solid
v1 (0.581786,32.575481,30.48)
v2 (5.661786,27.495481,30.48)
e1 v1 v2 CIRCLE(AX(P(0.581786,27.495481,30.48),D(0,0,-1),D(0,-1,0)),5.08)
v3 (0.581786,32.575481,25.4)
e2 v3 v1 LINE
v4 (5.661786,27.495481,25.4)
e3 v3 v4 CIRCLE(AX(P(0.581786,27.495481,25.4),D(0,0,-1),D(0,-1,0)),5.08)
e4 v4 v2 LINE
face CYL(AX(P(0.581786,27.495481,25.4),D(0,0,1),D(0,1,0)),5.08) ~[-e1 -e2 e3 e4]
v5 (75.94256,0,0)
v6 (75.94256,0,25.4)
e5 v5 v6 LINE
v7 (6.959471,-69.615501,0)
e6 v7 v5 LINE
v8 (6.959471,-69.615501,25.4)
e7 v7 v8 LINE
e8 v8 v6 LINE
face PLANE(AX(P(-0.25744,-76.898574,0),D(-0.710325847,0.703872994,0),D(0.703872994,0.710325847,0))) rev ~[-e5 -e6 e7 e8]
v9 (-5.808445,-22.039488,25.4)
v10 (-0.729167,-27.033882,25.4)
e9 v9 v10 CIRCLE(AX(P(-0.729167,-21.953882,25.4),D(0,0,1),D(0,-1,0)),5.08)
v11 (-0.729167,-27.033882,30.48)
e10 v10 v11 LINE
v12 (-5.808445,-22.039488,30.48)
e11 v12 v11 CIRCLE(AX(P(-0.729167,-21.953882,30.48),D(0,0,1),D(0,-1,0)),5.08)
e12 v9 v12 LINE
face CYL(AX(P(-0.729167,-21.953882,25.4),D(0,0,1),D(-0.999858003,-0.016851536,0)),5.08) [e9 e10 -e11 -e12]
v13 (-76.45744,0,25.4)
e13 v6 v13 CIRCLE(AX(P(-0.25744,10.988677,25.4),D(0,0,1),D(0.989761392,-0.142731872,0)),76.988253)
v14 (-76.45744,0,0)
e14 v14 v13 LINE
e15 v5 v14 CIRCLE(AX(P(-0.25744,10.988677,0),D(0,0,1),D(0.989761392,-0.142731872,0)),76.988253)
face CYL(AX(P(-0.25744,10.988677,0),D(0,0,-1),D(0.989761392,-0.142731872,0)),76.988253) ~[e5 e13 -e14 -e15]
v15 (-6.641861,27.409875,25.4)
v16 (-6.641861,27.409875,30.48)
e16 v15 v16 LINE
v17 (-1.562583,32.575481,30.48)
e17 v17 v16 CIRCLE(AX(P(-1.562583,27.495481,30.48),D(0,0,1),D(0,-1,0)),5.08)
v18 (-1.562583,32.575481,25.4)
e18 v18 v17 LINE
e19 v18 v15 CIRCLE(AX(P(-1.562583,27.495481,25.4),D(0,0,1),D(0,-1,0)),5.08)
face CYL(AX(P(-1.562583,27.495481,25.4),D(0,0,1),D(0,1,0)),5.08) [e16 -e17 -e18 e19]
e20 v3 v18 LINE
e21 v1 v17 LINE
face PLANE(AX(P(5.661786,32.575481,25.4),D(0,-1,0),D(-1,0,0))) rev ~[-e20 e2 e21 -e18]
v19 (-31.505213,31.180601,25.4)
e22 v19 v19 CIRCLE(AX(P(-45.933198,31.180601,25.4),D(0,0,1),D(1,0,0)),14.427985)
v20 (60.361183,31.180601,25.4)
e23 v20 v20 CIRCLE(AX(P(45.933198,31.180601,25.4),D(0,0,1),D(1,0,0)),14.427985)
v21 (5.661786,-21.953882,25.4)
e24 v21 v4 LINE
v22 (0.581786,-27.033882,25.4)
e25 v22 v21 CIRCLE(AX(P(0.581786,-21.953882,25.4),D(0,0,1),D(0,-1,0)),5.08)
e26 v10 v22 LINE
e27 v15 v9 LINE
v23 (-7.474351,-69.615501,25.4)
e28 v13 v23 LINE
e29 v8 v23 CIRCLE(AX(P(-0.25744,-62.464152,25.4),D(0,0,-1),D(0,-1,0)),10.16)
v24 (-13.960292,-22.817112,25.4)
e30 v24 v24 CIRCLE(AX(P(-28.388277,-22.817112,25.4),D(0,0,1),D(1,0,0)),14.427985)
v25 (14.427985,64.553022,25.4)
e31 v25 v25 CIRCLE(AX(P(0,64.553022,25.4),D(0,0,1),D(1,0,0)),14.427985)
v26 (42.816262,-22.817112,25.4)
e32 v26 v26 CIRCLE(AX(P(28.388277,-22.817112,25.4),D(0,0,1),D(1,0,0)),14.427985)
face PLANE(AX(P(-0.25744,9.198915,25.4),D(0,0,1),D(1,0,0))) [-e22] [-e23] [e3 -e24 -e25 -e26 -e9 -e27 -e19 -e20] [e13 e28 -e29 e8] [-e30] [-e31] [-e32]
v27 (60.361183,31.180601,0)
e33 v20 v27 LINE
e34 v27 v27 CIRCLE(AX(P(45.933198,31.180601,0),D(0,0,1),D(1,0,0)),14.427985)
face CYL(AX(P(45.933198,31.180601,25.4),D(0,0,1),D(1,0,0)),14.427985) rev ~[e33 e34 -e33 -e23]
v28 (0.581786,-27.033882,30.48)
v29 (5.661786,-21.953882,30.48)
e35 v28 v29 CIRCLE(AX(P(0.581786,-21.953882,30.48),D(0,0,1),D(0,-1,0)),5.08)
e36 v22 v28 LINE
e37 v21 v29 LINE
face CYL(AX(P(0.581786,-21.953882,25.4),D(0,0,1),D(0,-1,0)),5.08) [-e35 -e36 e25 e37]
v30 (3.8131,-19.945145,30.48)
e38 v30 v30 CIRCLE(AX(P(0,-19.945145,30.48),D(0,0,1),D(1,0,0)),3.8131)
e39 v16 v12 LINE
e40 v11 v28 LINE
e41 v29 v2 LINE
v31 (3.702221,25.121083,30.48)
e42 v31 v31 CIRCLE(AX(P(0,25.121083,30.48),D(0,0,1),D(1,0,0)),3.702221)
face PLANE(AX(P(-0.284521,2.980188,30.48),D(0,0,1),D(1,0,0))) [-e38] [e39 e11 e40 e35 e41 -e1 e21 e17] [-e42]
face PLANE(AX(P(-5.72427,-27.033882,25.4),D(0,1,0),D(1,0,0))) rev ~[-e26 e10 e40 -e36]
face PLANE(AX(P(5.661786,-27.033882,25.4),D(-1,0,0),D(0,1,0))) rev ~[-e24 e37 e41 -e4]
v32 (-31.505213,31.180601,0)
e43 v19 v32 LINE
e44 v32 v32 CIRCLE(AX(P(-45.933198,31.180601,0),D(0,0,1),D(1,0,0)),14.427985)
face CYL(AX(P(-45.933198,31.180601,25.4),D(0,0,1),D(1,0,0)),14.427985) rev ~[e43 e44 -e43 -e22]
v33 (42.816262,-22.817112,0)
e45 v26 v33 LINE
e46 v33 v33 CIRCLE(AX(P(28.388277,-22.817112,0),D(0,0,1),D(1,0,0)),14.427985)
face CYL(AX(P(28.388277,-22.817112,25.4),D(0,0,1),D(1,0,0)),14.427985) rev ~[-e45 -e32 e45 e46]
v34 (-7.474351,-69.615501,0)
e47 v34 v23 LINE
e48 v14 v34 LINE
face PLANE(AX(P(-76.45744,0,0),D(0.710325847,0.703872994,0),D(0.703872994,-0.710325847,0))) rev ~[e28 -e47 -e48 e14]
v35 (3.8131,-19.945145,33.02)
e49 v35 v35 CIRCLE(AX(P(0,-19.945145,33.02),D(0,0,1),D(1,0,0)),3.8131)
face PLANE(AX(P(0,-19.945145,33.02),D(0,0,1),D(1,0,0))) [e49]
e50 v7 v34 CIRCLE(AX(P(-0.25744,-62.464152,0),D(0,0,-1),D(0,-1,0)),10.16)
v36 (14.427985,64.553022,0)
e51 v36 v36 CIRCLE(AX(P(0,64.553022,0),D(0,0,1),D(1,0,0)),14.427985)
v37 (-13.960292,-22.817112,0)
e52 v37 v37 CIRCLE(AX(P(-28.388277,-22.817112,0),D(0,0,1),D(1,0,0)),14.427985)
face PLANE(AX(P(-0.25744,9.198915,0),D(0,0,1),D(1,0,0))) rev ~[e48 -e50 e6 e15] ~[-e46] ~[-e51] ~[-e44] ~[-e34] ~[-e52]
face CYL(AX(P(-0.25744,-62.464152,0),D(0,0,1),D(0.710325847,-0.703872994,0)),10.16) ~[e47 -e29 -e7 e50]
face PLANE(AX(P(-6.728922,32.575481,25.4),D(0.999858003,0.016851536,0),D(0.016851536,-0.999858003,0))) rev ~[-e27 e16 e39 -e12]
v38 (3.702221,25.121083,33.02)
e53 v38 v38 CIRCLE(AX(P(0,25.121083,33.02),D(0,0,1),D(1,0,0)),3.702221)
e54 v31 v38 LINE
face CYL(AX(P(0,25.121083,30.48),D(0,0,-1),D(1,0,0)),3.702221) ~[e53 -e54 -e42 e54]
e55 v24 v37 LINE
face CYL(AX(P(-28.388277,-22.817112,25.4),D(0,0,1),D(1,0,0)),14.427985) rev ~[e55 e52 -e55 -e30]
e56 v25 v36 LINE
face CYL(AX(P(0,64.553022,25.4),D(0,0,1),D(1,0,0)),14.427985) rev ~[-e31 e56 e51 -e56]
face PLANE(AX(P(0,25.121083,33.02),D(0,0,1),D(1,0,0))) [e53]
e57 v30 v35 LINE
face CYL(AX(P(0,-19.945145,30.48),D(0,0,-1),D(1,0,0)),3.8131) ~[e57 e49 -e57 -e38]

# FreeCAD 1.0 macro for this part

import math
import FreeCAD as App
import Part
import Sketcher
from FreeCAD import Vector
Q = App.Units.Quantity


def edges_at(feature, points):
    """Names of the edges that pass closest to the given points."""
    edges = feature.Shape.Edges
    near = lambda p: min(range(len(edges)), key=lambda i: edges[i].distToShape(Part.Vertex(*p))[0])
    return sorted({f"Edge{near(p) + 1}" for p in points})

doc = App.newDocument("Part")
body = doc.addObject("PartDesign::Body", "Body")

# Sketch on XY plane
sketch1 = body.newObject("Sketcher::SketchObject", "Sketch")
sketch1.AttachmentSupport = (doc.getObject("XY_Plane"), [""])
sketch1.MapMode = "FlatFace"
sketch1.addGeometry(Part.LineSegment(Vector(-0.25744, -76.898574, 0), Vector(75.94256, 0, 0)), False)
sketch1.addGeometry(Part.ArcOfCircle(Part.Circle(Vector(-0.25744, 10.988677, 0), Vector(0, 0, 1), 76.988253), math.radians(-8.205959), math.radians(188.205959)), False)
sketch1.addGeometry(Part.LineSegment(Vector(-76.45744, 0, 0), Vector(-0.25744, -76.898574, 0)), False)
sketch1.addConstraint(Sketcher.Constraint("Coincident", 0, 2, 1, 1))
sketch1.addConstraint(Sketcher.Constraint("Coincident", 1, 2, 2, 1))
sketch1.addConstraint(Sketcher.Constraint("Coincident", 2, 2, 0, 1))
sketch1.addConstraint(Sketcher.Constraint("PointOnObject", 0, 2, -1))
sketch1.addConstraint(Sketcher.Constraint("PointOnObject", 1, 2, -1))
sketch1.addConstraint(Sketcher.Constraint("Vertical", 1, 3, 2, 2))
sketch1.addConstraint(Sketcher.Constraint("DistanceX", 1, 3, 0, 2, Q("3 in")))
sketch1.addConstraint(Sketcher.Constraint("Radius", 1, Q("76.988253 mm")))
sketch1.addConstraint(Sketcher.Constraint("DistanceX", 1, 3, -1, 1, Q("0.25744 mm")))
sketch1.addConstraint(Sketcher.Constraint("DistanceY", 2, 2, 1, 3, Q("87.887251 mm")))
pad1 = body.newObject("PartDesign::Pad", "Pad")
pad1.Profile = sketch1
pad1.Length = Q("1 in")
doc.recompute()

fillet = body.newObject("PartDesign::Fillet", "Fillet")
fillet.Base = (pad1, edges_at(pad1, [(-0.257, -76.899, 12.7)]))
fillet.Radius = Q("0.4 in")

# Sketch on XY plane
sketch2 = body.newObject("Sketcher::SketchObject", "Sketch001")
sketch2.AttachmentSupport = (doc.getObject("XY_Plane"), [""])
sketch2.MapMode = "FlatFace"
sketch2.AttachmentOffset = App.Placement(Vector(0, 0, 1 * 25.4), App.Rotation())
sketch2.addGeometry(Part.Circle(Vector(0, 64.553022, 0), Vector(0, 0, 1), 14.427985), False)
sketch2.addGeometry(Part.Circle(Vector(-45.933198, 31.180601, 0), Vector(0, 0, 1), 14.427985), False)
sketch2.addGeometry(Part.Circle(Vector(-28.388277, -22.817112, 0), Vector(0, 0, 1), 14.427985), False)
sketch2.addGeometry(Part.Circle(Vector(28.388277, -22.817112, 0), Vector(0, 0, 1), 14.427985), False)
sketch2.addGeometry(Part.Circle(Vector(45.933198, 31.180601, 0), Vector(0, 0, 1), 14.427985), False)
sketch2.addConstraint(Sketcher.Constraint("Equal", 0, 1))
sketch2.addConstraint(Sketcher.Constraint("Equal", 1, 2))
sketch2.addConstraint(Sketcher.Constraint("Equal", 2, 3))
sketch2.addConstraint(Sketcher.Constraint("Equal", 3, 4))
sketch2.addConstraint(Sketcher.Constraint("Symmetric", 2, 3, 3, 3, -2))
sketch2.addConstraint(Sketcher.Constraint("Symmetric", 1, 3, 4, 3, -2))
sketch2.addConstraint(Sketcher.Constraint("PointOnObject", 0, 3, -2))
sketch2.addConstraint(Sketcher.Constraint("Diameter", 0, Q("28.85597 mm")))
sketch2.addConstraint(Sketcher.Constraint("DistanceY", -1, 1, 1, 3, Q("31.180601 mm")))
sketch2.addConstraint(Sketcher.Constraint("DistanceY", -1, 1, 0, 3, Q("64.553022 mm")))
sketch2.addConstraint(Sketcher.Constraint("DistanceX", 1, 3, 2, 3, Q("17.544921 mm")))
sketch2.addConstraint(Sketcher.Constraint("DistanceX", 1, 3, -1, 1, Q("45.933198 mm")))
sketch2.addConstraint(Sketcher.Constraint("DistanceY", 2, 3, -1, 1, Q("22.817112 mm")))
pocket1 = body.newObject("PartDesign::Pocket", "Pocket")
pocket1.Profile = sketch2
pocket1.Type = "ThroughAll"

# Sketch on XY plane
sketch3 = body.newObject("Sketcher::SketchObject", "Sketch002")
sketch3.AttachmentSupport = (doc.getObject("XY_Plane"), [""])
sketch3.MapMode = "FlatFace"
sketch3.AttachmentOffset = App.Placement(Vector(0, 0, 1 * 25.4), App.Rotation())
sketch3.addGeometry(Part.LineSegment(Vector(5.661786, 32.575481, 0), Vector(-6.728922, 32.575481, 0)), False)
sketch3.addGeometry(Part.LineSegment(Vector(-6.728922, 32.575481, 0), Vector(-5.72427, -27.033882, 0)), False)
sketch3.addGeometry(Part.LineSegment(Vector(-5.72427, -27.033882, 0), Vector(5.661786, -27.033882, 0)), False)
sketch3.addGeometry(Part.LineSegment(Vector(5.661786, -27.033882, 0), Vector(5.661786, 32.575481, 0)), False)
sketch3.addConstraint(Sketcher.Constraint("Coincident", 0, 2, 1, 1))
sketch3.addConstraint(Sketcher.Constraint("Coincident", 1, 2, 2, 1))
sketch3.addConstraint(Sketcher.Constraint("Coincident", 2, 2, 3, 1))
sketch3.addConstraint(Sketcher.Constraint("Coincident", 3, 2, 0, 1))
sketch3.addConstraint(Sketcher.Constraint("Horizontal", 0))
sketch3.addConstraint(Sketcher.Constraint("Horizontal", 2))
sketch3.addConstraint(Sketcher.Constraint("Vertical", 3))
sketch3.addConstraint(Sketcher.Constraint("Distance", 1, Q("59.617829 mm")))
sketch3.addConstraint(Sketcher.Constraint("DistanceX", 0, 2, 0, 1, Q("12.390708 mm")))
sketch3.addConstraint(Sketcher.Constraint("DistanceX", 2, 1, 2, 2, Q("11.386056 mm")))
sketch3.addConstraint(Sketcher.Constraint("DistanceY", -1, 1, 0, 2, Q("32.575481 mm")))
sketch3.addConstraint(Sketcher.Constraint("DistanceX", 1, 2, -1, 1, Q("5.72427 mm")))
pad2 = body.newObject("PartDesign::Pad", "Pad001")
pad2.Profile = sketch3
pad2.Length = Q("0.2 in")

# Sketch on XY plane
sketch4 = body.newObject("Sketcher::SketchObject", "Sketch003")
sketch4.AttachmentSupport = (doc.getObject("XY_Plane"), [""])
sketch4.MapMode = "FlatFace"
sketch4.AttachmentOffset = App.Placement(Vector(0, 0, 1.2 * 25.4), App.Rotation())
sketch4.addGeometry(Part.Circle(Vector(0, 25.121083, 0), Vector(0, 0, 1), 3.702221), False)
sketch4.addGeometry(Part.Circle(Vector(0, -19.945145, 0), Vector(0, 0, 1), 3.8131), False)
sketch4.addConstraint(Sketcher.Constraint("PointOnObject", 0, 3, -2))
sketch4.addConstraint(Sketcher.Constraint("PointOnObject", 1, 3, -2))
sketch4.addConstraint(Sketcher.Constraint("Diameter", 1, Q("7.6262 mm")))
sketch4.addConstraint(Sketcher.Constraint("Diameter", 0, Q("7.404442 mm")))
sketch4.addConstraint(Sketcher.Constraint("DistanceY", -1, 1, 0, 3, Q("25.121083 mm")))
sketch4.addConstraint(Sketcher.Constraint("DistanceY", 1, 3, -1, 1, Q("19.945145 mm")))
pad3 = body.newObject("PartDesign::Pad", "Pad002")
pad3.Profile = sketch4
pad3.Length = Q("0.1 in")
doc.recompute()

fillet2 = body.newObject("PartDesign::Fillet", "Fillet001")
fillet2.Base = (pad3, edges_at(pad3, [
    (-5.724, -27.034, 27.94),
    (5.662, -27.034, 27.94),
    (5.662, 32.575, 27.94),
    (-6.729, 32.575, 27.94),
]))
fillet2.Radius = Q("0.2 in")

doc.recompute()
